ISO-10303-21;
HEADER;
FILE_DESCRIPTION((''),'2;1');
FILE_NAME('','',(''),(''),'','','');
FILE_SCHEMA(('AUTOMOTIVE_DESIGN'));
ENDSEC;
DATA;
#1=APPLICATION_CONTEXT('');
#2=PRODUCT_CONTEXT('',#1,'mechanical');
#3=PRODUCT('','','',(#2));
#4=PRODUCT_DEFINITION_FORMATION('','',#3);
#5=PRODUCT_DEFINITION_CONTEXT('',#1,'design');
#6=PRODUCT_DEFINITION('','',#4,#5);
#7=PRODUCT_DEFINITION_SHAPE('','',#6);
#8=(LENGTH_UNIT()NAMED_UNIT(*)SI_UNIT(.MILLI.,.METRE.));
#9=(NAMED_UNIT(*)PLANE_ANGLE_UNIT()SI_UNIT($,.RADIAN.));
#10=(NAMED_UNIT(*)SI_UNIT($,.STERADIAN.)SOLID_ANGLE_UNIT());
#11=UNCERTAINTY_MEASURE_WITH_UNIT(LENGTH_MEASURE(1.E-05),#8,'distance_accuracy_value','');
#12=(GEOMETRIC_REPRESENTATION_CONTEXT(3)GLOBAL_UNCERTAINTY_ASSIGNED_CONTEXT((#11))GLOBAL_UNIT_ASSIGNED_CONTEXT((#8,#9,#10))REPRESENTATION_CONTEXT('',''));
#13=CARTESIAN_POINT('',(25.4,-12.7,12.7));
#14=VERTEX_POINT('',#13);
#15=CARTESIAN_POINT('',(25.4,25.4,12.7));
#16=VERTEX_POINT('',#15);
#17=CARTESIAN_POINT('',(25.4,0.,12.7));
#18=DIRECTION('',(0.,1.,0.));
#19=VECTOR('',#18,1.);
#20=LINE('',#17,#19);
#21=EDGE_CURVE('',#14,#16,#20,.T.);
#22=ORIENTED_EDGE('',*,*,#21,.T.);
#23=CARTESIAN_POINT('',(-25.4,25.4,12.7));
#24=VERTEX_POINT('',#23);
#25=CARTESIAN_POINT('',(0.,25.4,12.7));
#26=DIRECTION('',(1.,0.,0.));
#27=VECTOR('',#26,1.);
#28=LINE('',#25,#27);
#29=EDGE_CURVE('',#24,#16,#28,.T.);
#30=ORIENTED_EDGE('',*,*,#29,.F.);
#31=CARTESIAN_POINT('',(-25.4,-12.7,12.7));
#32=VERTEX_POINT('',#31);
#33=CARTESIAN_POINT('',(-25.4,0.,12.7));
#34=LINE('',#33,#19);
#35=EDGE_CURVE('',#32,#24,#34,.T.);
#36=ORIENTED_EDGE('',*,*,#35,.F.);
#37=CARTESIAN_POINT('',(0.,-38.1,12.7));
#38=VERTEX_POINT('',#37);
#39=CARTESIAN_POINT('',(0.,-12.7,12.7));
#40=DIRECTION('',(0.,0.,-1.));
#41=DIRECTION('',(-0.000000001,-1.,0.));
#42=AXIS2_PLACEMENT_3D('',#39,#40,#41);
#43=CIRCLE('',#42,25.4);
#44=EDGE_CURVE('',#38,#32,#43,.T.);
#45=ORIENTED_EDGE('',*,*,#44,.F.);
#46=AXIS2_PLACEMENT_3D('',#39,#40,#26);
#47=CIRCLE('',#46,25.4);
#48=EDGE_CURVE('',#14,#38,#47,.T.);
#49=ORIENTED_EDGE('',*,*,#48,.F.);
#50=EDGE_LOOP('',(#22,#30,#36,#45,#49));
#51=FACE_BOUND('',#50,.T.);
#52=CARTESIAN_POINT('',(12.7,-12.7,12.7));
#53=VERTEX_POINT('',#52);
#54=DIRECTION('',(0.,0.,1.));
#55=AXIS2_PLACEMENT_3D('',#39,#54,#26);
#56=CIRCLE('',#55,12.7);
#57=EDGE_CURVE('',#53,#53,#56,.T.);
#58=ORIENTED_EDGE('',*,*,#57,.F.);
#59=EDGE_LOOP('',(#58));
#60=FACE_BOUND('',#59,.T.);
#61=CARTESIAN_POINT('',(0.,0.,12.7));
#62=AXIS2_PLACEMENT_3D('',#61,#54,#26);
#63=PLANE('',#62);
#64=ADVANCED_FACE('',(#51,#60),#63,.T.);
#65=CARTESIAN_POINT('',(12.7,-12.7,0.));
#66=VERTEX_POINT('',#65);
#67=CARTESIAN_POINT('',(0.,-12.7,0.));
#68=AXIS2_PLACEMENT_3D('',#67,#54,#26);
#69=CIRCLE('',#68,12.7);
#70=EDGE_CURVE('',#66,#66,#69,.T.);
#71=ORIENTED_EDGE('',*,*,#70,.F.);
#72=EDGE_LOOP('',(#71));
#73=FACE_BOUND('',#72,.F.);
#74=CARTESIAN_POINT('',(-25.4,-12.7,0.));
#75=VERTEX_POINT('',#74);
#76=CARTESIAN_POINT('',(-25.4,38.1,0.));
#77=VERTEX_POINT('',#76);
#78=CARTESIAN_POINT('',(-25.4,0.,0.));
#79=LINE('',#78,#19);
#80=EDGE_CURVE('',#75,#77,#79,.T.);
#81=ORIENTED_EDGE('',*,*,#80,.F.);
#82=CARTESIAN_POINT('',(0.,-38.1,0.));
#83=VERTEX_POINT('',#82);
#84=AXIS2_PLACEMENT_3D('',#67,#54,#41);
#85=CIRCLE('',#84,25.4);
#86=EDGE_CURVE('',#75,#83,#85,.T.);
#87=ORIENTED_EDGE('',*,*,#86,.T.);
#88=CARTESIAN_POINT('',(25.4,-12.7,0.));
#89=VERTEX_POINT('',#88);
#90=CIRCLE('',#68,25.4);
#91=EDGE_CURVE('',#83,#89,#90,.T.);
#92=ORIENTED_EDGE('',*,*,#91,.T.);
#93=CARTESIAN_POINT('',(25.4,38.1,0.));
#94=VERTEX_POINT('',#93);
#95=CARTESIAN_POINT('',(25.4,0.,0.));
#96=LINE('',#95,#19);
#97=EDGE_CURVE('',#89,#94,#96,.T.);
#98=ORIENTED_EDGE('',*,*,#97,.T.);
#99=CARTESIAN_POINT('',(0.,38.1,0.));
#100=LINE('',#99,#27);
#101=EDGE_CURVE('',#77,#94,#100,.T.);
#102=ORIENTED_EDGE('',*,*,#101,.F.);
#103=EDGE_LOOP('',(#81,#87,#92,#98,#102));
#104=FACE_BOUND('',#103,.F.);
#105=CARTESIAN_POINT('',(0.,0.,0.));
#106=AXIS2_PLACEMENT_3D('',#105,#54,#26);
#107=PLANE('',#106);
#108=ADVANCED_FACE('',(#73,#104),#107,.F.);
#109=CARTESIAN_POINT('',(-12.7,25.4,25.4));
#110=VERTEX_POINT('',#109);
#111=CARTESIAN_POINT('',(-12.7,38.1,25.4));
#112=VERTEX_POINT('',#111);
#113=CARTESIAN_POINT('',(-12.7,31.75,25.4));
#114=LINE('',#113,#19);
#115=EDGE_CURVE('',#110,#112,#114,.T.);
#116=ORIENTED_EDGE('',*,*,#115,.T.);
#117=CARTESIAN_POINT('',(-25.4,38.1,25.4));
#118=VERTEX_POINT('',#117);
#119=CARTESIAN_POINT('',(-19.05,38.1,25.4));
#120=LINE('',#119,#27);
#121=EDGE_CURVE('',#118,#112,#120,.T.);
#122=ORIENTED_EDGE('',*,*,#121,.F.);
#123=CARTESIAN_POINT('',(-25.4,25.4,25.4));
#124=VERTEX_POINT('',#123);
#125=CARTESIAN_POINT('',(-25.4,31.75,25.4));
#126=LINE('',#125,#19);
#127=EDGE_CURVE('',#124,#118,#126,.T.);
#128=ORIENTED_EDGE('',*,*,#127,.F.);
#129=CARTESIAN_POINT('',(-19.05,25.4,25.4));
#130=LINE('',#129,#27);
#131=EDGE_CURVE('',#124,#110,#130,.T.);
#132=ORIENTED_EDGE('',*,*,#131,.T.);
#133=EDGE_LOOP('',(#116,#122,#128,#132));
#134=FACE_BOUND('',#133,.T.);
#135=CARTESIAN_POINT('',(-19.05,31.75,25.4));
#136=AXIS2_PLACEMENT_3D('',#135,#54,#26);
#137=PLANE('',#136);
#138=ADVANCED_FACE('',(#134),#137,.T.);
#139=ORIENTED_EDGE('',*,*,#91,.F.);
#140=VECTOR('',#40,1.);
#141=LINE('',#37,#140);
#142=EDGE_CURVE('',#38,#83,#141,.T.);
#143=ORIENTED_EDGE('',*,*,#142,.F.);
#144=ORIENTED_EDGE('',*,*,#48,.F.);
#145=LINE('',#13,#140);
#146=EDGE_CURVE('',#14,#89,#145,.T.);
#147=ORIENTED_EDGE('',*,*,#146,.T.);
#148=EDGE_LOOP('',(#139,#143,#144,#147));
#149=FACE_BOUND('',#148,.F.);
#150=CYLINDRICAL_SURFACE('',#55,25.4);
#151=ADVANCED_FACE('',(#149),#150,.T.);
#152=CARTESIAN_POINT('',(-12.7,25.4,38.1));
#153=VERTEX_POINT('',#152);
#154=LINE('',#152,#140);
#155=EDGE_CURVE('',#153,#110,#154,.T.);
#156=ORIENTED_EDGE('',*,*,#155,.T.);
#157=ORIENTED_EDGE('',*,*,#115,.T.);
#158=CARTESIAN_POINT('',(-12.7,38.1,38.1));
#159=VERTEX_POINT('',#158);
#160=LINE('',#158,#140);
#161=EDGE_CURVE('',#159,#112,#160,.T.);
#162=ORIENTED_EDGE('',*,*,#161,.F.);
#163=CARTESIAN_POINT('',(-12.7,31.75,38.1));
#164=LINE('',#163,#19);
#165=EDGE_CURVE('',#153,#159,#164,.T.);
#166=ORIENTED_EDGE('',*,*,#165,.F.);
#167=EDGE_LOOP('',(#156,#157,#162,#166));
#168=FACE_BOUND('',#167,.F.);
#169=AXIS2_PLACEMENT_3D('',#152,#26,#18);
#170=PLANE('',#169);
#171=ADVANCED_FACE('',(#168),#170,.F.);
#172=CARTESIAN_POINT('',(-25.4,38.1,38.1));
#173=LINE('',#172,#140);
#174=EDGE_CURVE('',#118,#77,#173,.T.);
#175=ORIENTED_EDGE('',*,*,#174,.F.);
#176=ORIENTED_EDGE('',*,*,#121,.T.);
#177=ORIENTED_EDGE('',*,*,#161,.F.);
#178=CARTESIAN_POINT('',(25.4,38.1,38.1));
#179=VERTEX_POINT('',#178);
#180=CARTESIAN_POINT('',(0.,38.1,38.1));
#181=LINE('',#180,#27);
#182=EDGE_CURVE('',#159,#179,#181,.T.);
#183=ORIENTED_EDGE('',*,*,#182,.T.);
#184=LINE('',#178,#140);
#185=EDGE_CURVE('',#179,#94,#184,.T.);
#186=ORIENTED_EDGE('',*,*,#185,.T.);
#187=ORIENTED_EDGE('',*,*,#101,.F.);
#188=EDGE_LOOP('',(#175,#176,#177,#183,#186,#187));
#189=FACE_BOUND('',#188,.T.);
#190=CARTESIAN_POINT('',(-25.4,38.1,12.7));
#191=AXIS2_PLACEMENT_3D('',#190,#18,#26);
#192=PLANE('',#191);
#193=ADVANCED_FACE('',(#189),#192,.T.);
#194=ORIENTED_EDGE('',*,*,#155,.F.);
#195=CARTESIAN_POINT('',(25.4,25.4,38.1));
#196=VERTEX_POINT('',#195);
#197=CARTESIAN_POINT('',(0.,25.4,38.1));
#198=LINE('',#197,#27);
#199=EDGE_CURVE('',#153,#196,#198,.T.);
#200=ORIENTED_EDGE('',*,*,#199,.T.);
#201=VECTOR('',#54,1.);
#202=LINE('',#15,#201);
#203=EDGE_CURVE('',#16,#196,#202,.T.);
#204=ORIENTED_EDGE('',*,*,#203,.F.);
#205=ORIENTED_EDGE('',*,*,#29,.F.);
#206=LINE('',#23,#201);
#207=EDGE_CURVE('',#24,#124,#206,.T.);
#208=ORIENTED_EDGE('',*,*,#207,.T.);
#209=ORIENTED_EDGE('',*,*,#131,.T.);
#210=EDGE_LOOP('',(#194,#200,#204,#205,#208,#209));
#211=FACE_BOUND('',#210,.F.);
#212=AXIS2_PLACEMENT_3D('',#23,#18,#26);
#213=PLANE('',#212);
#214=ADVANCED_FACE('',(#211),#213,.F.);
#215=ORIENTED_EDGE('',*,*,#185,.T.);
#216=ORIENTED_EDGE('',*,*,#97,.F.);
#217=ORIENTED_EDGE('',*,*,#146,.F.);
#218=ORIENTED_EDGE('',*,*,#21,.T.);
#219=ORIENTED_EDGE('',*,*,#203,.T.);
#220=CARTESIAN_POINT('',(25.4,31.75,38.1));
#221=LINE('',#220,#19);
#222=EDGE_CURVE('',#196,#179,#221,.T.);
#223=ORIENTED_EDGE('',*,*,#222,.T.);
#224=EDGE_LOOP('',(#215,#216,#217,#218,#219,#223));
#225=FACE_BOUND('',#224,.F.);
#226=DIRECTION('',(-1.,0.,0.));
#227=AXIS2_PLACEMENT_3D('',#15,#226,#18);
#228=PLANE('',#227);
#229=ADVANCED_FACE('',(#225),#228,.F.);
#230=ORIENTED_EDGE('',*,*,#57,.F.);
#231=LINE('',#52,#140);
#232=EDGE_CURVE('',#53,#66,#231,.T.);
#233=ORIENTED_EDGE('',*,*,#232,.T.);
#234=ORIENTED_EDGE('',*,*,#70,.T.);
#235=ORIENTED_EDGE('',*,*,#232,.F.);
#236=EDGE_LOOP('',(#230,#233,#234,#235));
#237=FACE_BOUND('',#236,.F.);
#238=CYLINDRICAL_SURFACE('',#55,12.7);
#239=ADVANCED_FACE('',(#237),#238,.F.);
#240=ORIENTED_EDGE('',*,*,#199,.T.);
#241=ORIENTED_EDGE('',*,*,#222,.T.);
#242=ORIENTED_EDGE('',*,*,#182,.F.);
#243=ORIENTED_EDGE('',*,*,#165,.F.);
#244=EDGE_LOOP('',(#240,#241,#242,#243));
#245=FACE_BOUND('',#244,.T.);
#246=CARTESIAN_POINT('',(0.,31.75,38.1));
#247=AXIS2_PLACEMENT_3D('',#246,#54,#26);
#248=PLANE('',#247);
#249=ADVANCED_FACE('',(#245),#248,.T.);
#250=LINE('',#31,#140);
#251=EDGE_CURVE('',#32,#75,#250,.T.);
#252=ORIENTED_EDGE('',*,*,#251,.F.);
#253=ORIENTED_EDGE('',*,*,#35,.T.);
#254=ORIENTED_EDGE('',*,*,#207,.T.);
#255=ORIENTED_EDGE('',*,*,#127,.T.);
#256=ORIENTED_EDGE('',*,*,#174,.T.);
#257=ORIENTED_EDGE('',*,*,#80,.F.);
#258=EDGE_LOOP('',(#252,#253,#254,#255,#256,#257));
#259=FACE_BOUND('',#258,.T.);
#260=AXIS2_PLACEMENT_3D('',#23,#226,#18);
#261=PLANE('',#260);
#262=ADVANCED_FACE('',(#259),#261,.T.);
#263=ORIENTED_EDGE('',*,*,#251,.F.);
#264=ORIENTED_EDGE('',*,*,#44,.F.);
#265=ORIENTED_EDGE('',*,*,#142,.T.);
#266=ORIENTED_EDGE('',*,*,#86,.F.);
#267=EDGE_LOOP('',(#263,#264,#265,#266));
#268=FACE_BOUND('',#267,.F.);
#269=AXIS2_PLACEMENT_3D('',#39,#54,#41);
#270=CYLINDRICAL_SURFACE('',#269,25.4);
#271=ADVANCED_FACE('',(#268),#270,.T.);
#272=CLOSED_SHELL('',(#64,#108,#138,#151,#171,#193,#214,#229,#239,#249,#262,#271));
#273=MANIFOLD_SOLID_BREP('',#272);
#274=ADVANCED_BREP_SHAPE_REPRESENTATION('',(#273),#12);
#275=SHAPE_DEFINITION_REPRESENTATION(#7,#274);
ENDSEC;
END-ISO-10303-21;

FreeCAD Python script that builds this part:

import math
import FreeCAD as App
import Part
import Sketcher
Q = App.Units.Quantity

doc = App.newDocument("Part")
body = doc.addObject("PartDesign::Body", "Body")

sketch1 = body.newObject("Sketcher::SketchObject", "Sketch")
sketch1.AttachmentSupport = (doc.getObject("XY_Plane"), [""])
sketch1.MapMode = "FlatFace"
sketch1.addGeometry(Part.LineSegment(App.Vector(-25.4, 38.1, 0), App.Vector(-25.4, -38.1, 0)), False)
sketch1.addGeometry(Part.LineSegment(App.Vector(-25.4, -38.1, 0), App.Vector(25.4, -38.1, 0)), False)
sketch1.addGeometry(Part.LineSegment(App.Vector(25.4, -38.1, 0), App.Vector(25.4, 38.1, 0)), False)
sketch1.addGeometry(Part.LineSegment(App.Vector(25.4, 38.1, 0), App.Vector(-25.4, 38.1, 0)), False)
sketch1.addConstraint(Sketcher.Constraint("Coincident", 0, 2, 1, 1))
sketch1.addConstraint(Sketcher.Constraint("Coincident", 1, 2, 2, 1))
sketch1.addConstraint(Sketcher.Constraint("Coincident", 2, 2, 3, 1))
sketch1.addConstraint(Sketcher.Constraint("Coincident", 3, 2, 0, 1))
sketch1.addConstraint(Sketcher.Constraint("Vertical", 0))
sketch1.addConstraint(Sketcher.Constraint("Horizontal", 1))
sketch1.addConstraint(Sketcher.Constraint("Vertical", 2))
sketch1.addConstraint(Sketcher.Constraint("Horizontal", 3))
sketch1.addConstraint(Sketcher.Constraint("Symmetric", 0, 2, 2, 2, -1, 1))
sketch1.addConstraint(Sketcher.Constraint("DistanceX", 1, 1, 1, 2, Q("2 in")))
sketch1.addConstraint(Sketcher.Constraint("DistanceY", 0, 2, 0, 1, Q("3 in")))
pad1 = body.newObject("PartDesign::Pad", "Pad")
pad1.Profile = sketch1
pad1.Length = Q("0.5 in")

sketch2 = body.newObject("Sketcher::SketchObject", "Sketch001")
sketch2.AttachmentSupport = (doc.getObject("XY_Plane"), [""])
sketch2.MapMode = "FlatFace"
sketch2.AttachmentOffset = App.Placement(App.Vector(0, 0, 0.5 * 25.4), App.Rotation())
sketch2.addGeometry(Part.LineSegment(App.Vector(-25.4, 38.1, 0), App.Vector(-25.4, 25.4, 0)), False)
sketch2.addGeometry(Part.LineSegment(App.Vector(-25.4, 25.4, 0), App.Vector(25.4, 25.4, 0)), False)
sketch2.addGeometry(Part.LineSegment(App.Vector(25.4, 25.4, 0), App.Vector(25.4, 38.1, 0)), False)
sketch2.addGeometry(Part.LineSegment(App.Vector(25.4, 38.1, 0), App.Vector(-25.4, 38.1, 0)), False)
sketch2.addConstraint(Sketcher.Constraint("Coincident", 0, 2, 1, 1))
sketch2.addConstraint(Sketcher.Constraint("Coincident", 1, 2, 2, 1))
sketch2.addConstraint(Sketcher.Constraint("Coincident", 2, 2, 3, 1))
sketch2.addConstraint(Sketcher.Constraint("Coincident", 3, 2, 0, 1))
sketch2.addConstraint(Sketcher.Constraint("Vertical", 0))
sketch2.addConstraint(Sketcher.Constraint("Horizontal", 1))
sketch2.addConstraint(Sketcher.Constraint("Vertical", 2))
sketch2.addConstraint(Sketcher.Constraint("Horizontal", 3))
sketch2.addConstraint(Sketcher.Constraint("DistanceX", 1, 1, 1, 2, Q("2 in")))
sketch2.addConstraint(Sketcher.Constraint("DistanceY", 0, 2, 0, 1, Q("0.5 in")))
sketch2.addConstraint(Sketcher.Constraint("DistanceX", 0, 2, -1, 1, Q("1 in")))
sketch2.addConstraint(Sketcher.Constraint("DistanceY", -1, 1, 0, 2, Q("1 in")))
pad2 = body.newObject("PartDesign::Pad", "Pad001")
pad2.Profile = sketch2
pad2.Length = Q("1 in")

sketch3 = body.newObject("Sketcher::SketchObject", "Sketch002")
sketch3.AttachmentSupport = (doc.getObject("XY_Plane"), [""])
sketch3.MapMode = "FlatFace"
sketch3.AttachmentOffset = App.Placement(App.Vector(0, 0, 1.5 * 25.4), App.Rotation())
sketch3.addGeometry(Part.LineSegment(App.Vector(-25.4, 38.1, 0), App.Vector(-25.4, 25.4, 0)), False)
sketch3.addGeometry(Part.LineSegment(App.Vector(-25.4, 25.4, 0), App.Vector(-12.7, 25.4, 0)), False)
sketch3.addGeometry(Part.LineSegment(App.Vector(-12.7, 25.4, 0), App.Vector(-12.7, 38.1, 0)), False)
sketch3.addGeometry(Part.LineSegment(App.Vector(-12.7, 38.1, 0), App.Vector(-25.4, 38.1, 0)), False)
sketch3.addConstraint(Sketcher.Constraint("Coincident", 0, 2, 1, 1))
sketch3.addConstraint(Sketcher.Constraint("Coincident", 1, 2, 2, 1))
sketch3.addConstraint(Sketcher.Constraint("Coincident", 2, 2, 3, 1))
sketch3.addConstraint(Sketcher.Constraint("Coincident", 3, 2, 0, 1))
sketch3.addConstraint(Sketcher.Constraint("Vertical", 0))
sketch3.addConstraint(Sketcher.Constraint("Horizontal", 1))
sketch3.addConstraint(Sketcher.Constraint("Vertical", 2))
sketch3.addConstraint(Sketcher.Constraint("Horizontal", 3))
sketch3.addConstraint(Sketcher.Constraint("Equal", 3, 0))
sketch3.addConstraint(Sketcher.Constraint("DistanceX", 1, 1, 1, 2, Q("0.5 in")))
sketch3.addConstraint(Sketcher.Constraint("DistanceX", 0, 2, -1, 1, Q("1 in")))
sketch3.addConstraint(Sketcher.Constraint("DistanceY", -1, 1, 0, 2, Q("1 in")))
pocket1 = body.newObject("PartDesign::Pocket", "Pocket")
pocket1.Profile = sketch3
pocket1.Length = Q("0.5 in")

sketch4 = body.newObject("Sketcher::SketchObject", "Sketch003")
sketch4.AttachmentSupport = (doc.getObject("XY_Plane"), [""])
sketch4.MapMode = "FlatFace"
sketch4.AttachmentOffset = App.Placement(App.Vector(0, 0, 0.5 * 25.4), App.Rotation())
sketch4.addGeometry(Part.Circle(App.Vector(0, -12.7, 0), App.Vector(0, 0, 1), 12.7), False)
sketch4.addGeometry(Part.ArcOfCircle(Part.Circle(App.Vector(0, -12.7, 0), App.Vector(0, 0, 1), 25.4), math.radians(180), math.radians(270)), False)
sketch4.addGeometry(Part.LineSegment(App.Vector(-25.4, -12.7, 0), App.Vector(-25.4, -38.1, 0)), False)
sketch4.addGeometry(Part.LineSegment(App.Vector(-25.4, -38.1, 0), App.Vector(0, -38.1, 0)), False)
sketch4.addGeometry(Part.ArcOfCircle(Part.Circle(App.Vector(0, -12.7, 0), App.Vector(0, 0, 1), 25.4), math.radians(-90), math.radians(0)), False)
sketch4.addGeometry(Part.LineSegment(App.Vector(0, -38.1, 0), App.Vector(25.4, -38.1, 0)), False)
sketch4.addGeometry(Part.LineSegment(App.Vector(25.4, -38.1, 0), App.Vector(25.4, -12.7, 0)), False)
sketch4.addConstraint(Sketcher.Constraint("Tangent", 1, 1, 2, 1))
sketch4.addConstraint(Sketcher.Constraint("Coincident", 2, 2, 3, 1))
sketch4.addConstraint(Sketcher.Constraint("Tangent", 3, 2, 1, 2))
sketch4.addConstraint(Sketcher.Constraint("Tangent", 4, 1, 5, 1))
sketch4.addConstraint(Sketcher.Constraint("Coincident", 5, 2, 6, 1))
sketch4.addConstraint(Sketcher.Constraint("Tangent", 6, 2, 4, 2))
sketch4.addConstraint(Sketcher.Constraint("Vertical", 2))
sketch4.addConstraint(Sketcher.Constraint("Horizontal", 3))
sketch4.addConstraint(Sketcher.Constraint("Horizontal", 5))
sketch4.addConstraint(Sketcher.Constraint("Vertical", 6))
sketch4.addConstraint(Sketcher.Constraint("Coincident", 1, 3, 0, 3))
sketch4.addConstraint(Sketcher.Constraint("Coincident", 4, 3, 0, 3))
sketch4.addConstraint(Sketcher.Constraint("Equal", 1, 4))
sketch4.addConstraint(Sketcher.Constraint("PointOnObject", 0, 3, -2))
sketch4.addConstraint(Sketcher.Constraint("Diameter", 0, Q("1 in")))
sketch4.addConstraint(Sketcher.Constraint("Radius", 1, Q("1 in")))
sketch4.addConstraint(Sketcher.Constraint("DistanceY", 0, 3, -1, 1, Q("0.5 in")))
pocket2 = body.newObject("PartDesign::Pocket", "Pocket001")
pocket2.Profile = sketch4
pocket2.Type = "ThroughAll"

doc.recompute()
